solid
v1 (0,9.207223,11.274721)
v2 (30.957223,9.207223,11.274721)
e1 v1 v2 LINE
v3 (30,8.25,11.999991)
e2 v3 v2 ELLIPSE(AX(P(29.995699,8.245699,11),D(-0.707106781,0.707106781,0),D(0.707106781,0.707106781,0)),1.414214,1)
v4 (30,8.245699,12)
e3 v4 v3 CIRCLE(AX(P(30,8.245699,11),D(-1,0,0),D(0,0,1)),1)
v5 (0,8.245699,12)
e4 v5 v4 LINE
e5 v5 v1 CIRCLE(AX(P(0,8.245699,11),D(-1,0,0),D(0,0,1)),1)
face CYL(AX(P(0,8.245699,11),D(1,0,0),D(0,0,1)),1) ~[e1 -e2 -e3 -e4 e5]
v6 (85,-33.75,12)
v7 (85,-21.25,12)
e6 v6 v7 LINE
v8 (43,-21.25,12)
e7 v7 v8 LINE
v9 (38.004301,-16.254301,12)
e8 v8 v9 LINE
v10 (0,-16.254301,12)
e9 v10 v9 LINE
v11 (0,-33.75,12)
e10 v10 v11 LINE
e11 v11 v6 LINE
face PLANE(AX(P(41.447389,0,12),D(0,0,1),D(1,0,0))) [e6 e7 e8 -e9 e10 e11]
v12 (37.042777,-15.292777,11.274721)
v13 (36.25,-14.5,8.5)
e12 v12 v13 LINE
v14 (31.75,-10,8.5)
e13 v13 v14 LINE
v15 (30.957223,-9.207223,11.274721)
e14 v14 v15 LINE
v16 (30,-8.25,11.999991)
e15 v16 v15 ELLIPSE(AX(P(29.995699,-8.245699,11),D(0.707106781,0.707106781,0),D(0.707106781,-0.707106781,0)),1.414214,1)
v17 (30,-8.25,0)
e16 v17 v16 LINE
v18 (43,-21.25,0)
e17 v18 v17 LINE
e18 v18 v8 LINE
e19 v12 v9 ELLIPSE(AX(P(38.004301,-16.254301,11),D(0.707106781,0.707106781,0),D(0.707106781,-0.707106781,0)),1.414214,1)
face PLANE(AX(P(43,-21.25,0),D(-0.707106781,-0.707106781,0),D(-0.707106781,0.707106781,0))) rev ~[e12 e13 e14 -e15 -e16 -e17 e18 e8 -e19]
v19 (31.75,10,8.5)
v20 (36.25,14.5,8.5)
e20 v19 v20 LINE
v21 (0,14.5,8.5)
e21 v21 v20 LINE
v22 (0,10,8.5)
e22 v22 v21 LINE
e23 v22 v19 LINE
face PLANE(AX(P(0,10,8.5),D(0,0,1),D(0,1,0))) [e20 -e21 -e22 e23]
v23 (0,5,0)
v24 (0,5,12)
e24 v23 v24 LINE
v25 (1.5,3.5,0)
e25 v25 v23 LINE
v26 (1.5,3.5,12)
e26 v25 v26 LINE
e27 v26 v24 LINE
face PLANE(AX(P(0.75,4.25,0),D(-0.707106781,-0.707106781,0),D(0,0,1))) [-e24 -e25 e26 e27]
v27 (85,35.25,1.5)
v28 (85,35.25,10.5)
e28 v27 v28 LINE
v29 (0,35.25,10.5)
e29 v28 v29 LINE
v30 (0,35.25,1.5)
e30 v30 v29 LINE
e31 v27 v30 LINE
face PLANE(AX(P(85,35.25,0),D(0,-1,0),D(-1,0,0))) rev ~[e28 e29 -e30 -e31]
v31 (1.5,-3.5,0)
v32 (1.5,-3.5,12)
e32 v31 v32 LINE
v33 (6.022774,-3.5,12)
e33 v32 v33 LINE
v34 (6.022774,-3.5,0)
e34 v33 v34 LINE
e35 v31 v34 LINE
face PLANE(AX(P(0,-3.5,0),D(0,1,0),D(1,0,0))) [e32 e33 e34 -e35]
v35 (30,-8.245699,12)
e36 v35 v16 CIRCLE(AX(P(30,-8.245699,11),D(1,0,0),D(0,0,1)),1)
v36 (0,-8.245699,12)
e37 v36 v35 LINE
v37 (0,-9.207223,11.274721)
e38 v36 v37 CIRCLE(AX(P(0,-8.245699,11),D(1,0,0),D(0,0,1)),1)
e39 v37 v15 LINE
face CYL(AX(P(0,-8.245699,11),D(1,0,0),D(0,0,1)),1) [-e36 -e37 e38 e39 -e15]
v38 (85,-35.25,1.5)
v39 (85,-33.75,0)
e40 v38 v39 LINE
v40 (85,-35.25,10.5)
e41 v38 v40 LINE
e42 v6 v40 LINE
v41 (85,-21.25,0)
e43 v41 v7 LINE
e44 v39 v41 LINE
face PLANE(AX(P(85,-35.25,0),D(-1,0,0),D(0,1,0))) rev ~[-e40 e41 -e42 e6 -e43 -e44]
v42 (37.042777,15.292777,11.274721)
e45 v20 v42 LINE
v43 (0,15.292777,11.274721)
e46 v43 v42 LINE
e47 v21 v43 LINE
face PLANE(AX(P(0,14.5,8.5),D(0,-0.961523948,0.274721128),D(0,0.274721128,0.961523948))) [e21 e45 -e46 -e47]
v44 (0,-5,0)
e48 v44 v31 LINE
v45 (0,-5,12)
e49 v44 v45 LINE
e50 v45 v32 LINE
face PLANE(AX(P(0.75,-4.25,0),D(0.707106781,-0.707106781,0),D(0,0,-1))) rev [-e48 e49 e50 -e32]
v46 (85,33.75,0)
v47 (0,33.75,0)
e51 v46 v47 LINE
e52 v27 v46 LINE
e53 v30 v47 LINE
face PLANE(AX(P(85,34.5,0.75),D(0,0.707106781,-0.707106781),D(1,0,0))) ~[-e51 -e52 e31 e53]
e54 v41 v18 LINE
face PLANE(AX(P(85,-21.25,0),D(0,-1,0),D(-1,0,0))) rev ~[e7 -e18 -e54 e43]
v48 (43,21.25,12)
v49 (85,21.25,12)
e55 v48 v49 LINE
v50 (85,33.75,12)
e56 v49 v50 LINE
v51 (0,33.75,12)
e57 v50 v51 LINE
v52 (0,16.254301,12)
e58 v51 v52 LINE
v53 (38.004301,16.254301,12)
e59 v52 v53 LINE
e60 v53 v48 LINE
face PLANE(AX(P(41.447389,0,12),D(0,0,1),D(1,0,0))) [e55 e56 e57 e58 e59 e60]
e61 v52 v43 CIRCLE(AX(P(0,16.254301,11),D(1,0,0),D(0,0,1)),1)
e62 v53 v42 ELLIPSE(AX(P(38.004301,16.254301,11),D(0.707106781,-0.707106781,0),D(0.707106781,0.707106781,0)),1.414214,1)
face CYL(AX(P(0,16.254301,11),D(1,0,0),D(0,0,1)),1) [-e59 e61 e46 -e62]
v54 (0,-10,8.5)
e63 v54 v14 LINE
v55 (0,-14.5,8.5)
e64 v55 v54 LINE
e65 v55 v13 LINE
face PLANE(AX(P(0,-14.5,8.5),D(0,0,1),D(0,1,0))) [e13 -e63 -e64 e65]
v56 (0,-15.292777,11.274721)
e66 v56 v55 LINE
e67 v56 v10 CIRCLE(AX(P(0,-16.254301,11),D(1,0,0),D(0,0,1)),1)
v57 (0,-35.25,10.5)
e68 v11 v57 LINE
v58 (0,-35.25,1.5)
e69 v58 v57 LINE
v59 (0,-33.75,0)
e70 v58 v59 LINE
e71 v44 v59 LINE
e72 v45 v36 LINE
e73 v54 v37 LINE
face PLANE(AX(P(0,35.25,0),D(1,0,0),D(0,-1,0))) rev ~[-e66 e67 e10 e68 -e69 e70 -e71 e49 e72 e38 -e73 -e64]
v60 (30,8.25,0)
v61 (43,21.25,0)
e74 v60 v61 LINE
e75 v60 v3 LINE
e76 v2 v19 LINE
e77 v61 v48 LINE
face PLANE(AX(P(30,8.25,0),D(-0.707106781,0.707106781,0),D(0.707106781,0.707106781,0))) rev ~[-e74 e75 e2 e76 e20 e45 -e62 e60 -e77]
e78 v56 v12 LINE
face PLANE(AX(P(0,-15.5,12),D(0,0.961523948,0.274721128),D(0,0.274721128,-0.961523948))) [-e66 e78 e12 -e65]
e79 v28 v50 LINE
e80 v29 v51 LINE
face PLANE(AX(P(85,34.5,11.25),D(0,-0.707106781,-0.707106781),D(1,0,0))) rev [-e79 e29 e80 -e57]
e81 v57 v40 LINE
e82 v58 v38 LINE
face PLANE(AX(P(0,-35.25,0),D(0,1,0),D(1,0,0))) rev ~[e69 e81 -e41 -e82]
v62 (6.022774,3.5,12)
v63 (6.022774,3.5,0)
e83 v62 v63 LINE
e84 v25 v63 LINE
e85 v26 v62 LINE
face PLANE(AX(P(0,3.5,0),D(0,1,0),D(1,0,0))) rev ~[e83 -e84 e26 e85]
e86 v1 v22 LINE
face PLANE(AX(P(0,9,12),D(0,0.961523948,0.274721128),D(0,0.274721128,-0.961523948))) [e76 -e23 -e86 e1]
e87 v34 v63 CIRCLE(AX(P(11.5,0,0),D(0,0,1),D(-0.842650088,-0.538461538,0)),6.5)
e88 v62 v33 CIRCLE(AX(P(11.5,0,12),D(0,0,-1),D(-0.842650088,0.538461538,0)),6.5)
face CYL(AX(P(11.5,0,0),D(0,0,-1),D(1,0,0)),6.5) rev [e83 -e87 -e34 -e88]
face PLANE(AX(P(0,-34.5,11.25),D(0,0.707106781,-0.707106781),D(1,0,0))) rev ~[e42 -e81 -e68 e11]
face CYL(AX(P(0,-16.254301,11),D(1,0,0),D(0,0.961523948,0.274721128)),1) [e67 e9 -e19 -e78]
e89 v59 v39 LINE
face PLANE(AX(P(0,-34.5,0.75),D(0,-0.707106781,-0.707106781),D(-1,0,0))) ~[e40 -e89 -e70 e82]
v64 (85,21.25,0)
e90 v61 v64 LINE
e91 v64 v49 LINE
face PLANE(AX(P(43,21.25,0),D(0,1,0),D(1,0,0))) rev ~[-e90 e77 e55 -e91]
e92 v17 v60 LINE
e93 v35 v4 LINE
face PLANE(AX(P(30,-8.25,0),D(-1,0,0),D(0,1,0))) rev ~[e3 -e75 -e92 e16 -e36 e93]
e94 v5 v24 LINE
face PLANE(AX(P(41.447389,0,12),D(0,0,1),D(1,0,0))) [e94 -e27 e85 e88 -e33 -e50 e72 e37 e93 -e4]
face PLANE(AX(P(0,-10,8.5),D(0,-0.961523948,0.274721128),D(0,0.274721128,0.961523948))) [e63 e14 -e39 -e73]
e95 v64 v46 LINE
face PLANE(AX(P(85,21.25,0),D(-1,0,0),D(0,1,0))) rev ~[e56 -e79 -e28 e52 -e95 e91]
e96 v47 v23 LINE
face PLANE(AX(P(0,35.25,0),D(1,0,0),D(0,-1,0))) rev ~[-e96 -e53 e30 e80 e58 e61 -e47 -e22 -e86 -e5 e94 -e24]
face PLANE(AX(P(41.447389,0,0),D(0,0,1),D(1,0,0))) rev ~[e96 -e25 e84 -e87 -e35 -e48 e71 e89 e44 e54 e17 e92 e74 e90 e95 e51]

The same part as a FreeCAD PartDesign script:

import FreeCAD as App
import Part
import Sketcher
Q = App.Units.Quantity


def edges_at(feature, points):
    """Names of the edges that pass closest to the given points."""
    edges = feature.Shape.Edges
    near = lambda p: min(range(len(edges)), key=lambda i: edges[i].distToShape(Part.Vertex(*p))[0])
    return sorted({f"Edge{near(p) + 1}" for p in points})

doc = App.newDocument("Part")
params = doc.addObject("Spreadsheet::Sheet", "Params")
for row, (alias, value) in enumerate([
    ("sketch1_width", "85 mm"),
    ("sketch1_width2", "42 mm"),
    ("sketch1_height", "14 mm"),
    ("sketch1_height2", "70.5 mm"),
    ("sketch1_height3", "16.5 mm"),
    ("pad1_length", "12 mm"),
    ("sketch2_width", "8 mm"),
    ("sketch2_height", "7 mm"),
    ("pocket1_length", "12 mm"),
    ("sketch3_diameter", "13 mm"),
    ("pocket2_length", "12 mm"),
    ("chamfer_size", "1.5 mm"),
    ("sketch4_width", "6.5 mm"),
    ("sketch4_width2", "4.5 mm"),
    ("pocket3_length", "40 mm"),
    ("fillet_radius", "1 mm"),
], start=1):
    params.set(f"A{row}", alias)
    params.set(f"B{row}", "=" + value)
    params.setAlias(f"B{row}", alias)

body = doc.addObject("PartDesign::Body", "Body")

sketch1 = doc.addObject("Sketcher::SketchObject", "Sketch")
body.addObject(sketch1)
sketch1.AttachmentSupport = (doc.XY_Plane, [""])
sketch1.MapMode = "FlatFace"
sketch1.addGeometry([
    Part.LineSegment(App.Vector(85, 35, 0), App.Vector(0, 35, 0)),
    Part.LineSegment(App.Vector(0, 35, 0), App.Vector(0, -35, 0)),
    Part.LineSegment(App.Vector(0, -35, 0), App.Vector(85, -35, 0)),
    Part.LineSegment(App.Vector(85, -35, 0), App.Vector(85, -21, 0)),
    Part.LineSegment(App.Vector(85, -21, 0), App.Vector(43, -21, 0)),
    Part.LineSegment(App.Vector(43, -21, 0), App.Vector(30, -8, 0)),
    Part.LineSegment(App.Vector(30, -8, 0), App.Vector(30, 8, 0)),
    Part.LineSegment(App.Vector(30, 8, 0), App.Vector(43, 21, 0)),
    Part.LineSegment(App.Vector(43, 21, 0), App.Vector(85, 21, 0)),
    Part.LineSegment(App.Vector(85, 21, 0), App.Vector(85, 35, 0)),
], False)
sketch1.addConstraint([
    Sketcher.Constraint("Coincident", 0, 2, 1, 1),
    Sketcher.Constraint("Coincident", 1, 2, 2, 1),
    Sketcher.Constraint("Coincident", 2, 2, 3, 1),
    Sketcher.Constraint("Coincident", 3, 2, 4, 1),
    Sketcher.Constraint("Coincident", 4, 2, 5, 1),
    Sketcher.Constraint("Coincident", 5, 2, 6, 1),
    Sketcher.Constraint("Coincident", 6, 2, 7, 1),
    Sketcher.Constraint("Coincident", 7, 2, 8, 1),
    Sketcher.Constraint("Coincident", 8, 2, 9, 1),
    Sketcher.Constraint("Coincident", 9, 2, 0, 1),
    Sketcher.Constraint("Horizontal", 0),
    Sketcher.Constraint("Vertical", 1),
    Sketcher.Constraint("Horizontal", 2),
    Sketcher.Constraint("Vertical", 3),
    Sketcher.Constraint("Horizontal", 4),
    Sketcher.Constraint("Vertical", 6),
    Sketcher.Constraint("Horizontal", 8),
    Sketcher.Constraint("Vertical", 9),
    Sketcher.Constraint("Symmetric", 0, 2, 1, 2, -1, 1),
    Sketcher.Constraint("Symmetric", 4, 2, 7, 2, -1),
    Sketcher.Constraint("Perpendicular", 5, 7),
    Sketcher.Constraint("Vertical", 3, 2, 8, 2),
    Sketcher.Constraint("Equal", 5, 7),
    Sketcher.Constraint("DistanceX", 0, 2, 0, 1, Q("85 mm")),
    Sketcher.Constraint("DistanceX", 4, 2, 4, 1, Q("42 mm")),
    Sketcher.Constraint("DistanceY", 3, 1, 3, 2, Q("14 mm")),
    Sketcher.Constraint("DistanceY", 1, 2, 1, 1, Q("70.5 mm")),
    Sketcher.Constraint("DistanceY", 6, 1, 6, 2, Q("16.5 mm")),
])
sketch1.setExpression("Constraints[23]", "Params.sketch1_width")
sketch1.setExpression("Constraints[24]", "Params.sketch1_width2")
sketch1.setExpression("Constraints[25]", "Params.sketch1_height")
sketch1.setExpression("Constraints[26]", "Params.sketch1_height2")
sketch1.setExpression("Constraints[27]", "Params.sketch1_height3")
pad1 = doc.addObject("PartDesign::Pad", "Pad")
body.addObject(pad1)
pad1.Profile = sketch1
pad1.setExpression("Length", "Params.pad1_length")

sketch2 = doc.addObject("Sketcher::SketchObject", "Sketch001")
body.addObject(sketch2)
sketch2.AttachmentSupport = (doc.XY_Plane, [""])
sketch2.MapMode = "FlatFace"
sketch2.addGeometry([
    Part.LineSegment(App.Vector(0, 4, 0), App.Vector(0, -4, 0)),
    Part.LineSegment(App.Vector(0, -4, 0), App.Vector(8, -4, 0)),
    Part.LineSegment(App.Vector(8, -4, 0), App.Vector(8, 4, 0)),
    Part.LineSegment(App.Vector(8, 4, 0), App.Vector(0, 4, 0)),
], False)
sketch2.addConstraint([
    Sketcher.Constraint("Coincident", 0, 2, 1, 1),
    Sketcher.Constraint("Coincident", 1, 2, 2, 1),
    Sketcher.Constraint("Coincident", 2, 2, 3, 1),
    Sketcher.Constraint("Coincident", 3, 2, 0, 1),
    Sketcher.Constraint("Vertical", 0),
    Sketcher.Constraint("Horizontal", 1),
    Sketcher.Constraint("Vertical", 2),
    Sketcher.Constraint("Horizontal", 3),
    Sketcher.Constraint("Symmetric", 0, 2, 3, 2, -1, 1),
    Sketcher.Constraint("DistanceX", 1, 1, 1, 2, Q("8 mm")),
    Sketcher.Constraint("DistanceY", 0, 2, 0, 1, Q("7 mm")),
])
sketch2.setExpression("Constraints[9]", "Params.sketch2_width")
sketch2.setExpression("Constraints[10]", "Params.sketch2_height")
pocket1 = doc.addObject("PartDesign::Pocket", "Pocket")
body.addObject(pocket1)
pocket1.Profile = sketch2
pocket1.setExpression("Length", "Params.pocket1_length")
pocket1.Reversed = True

sketch3 = doc.addObject("Sketcher::SketchObject", "Sketch002")
body.addObject(sketch3)
sketch3.AttachmentSupport = (doc.XY_Plane, [""])
sketch3.MapMode = "FlatFace"
sketch3.addGeometry(Part.Circle(App.Vector(12, 0, 0), App.Vector(0, 0, 1), 6), False)
sketch3.addConstraint([
    Sketcher.Constraint("PointOnObject", 0, 3, -1),
    Sketcher.Constraint("Diameter", 0, Q("13 mm")),
    Sketcher.Constraint("DistanceX", -1, 1, 0, 3, Q("11.5 mm")),
])
sketch3.setExpression("Constraints[1]", "Params.sketch3_diameter")
pocket2 = doc.addObject("PartDesign::Pocket", "Pocket001")
body.addObject(pocket2)
pocket2.Profile = sketch3
pocket2.setExpression("Length", "Params.pocket2_length")
pocket2.Reversed = True
doc.recompute()

chamfer = doc.addObject("PartDesign::Chamfer", "Chamfer")
body.addObject(chamfer)
chamfer.Base = (pocket2, edges_at(pocket2, [
    (42.5, -35.25, 12),
    (42.5, 35.25, 12),
    (42.5, -35.25, 0),
    (42.5, 35.25, 0),
    (0, 3.5, 6),
    (0, -3.5, 6),
]))
chamfer.setExpression("Size", "Params.chamfer_size")

sketch4 = doc.addObject("Sketcher::SketchObject", "Sketch003")
body.addObject(sketch4)
sketch4.AttachmentSupport = (doc.YZ_Plane, [""])
sketch4.MapMode = "FlatFace"
sketch4.addGeometry([
    Part.LineSegment(App.Vector(-10, 8.5, 0), App.Vector(-9, 12, 0)),
    Part.LineSegment(App.Vector(-9, 12, 0), App.Vector(-15.5, 12, 0)),
    Part.LineSegment(App.Vector(-15.5, 12, 0), App.Vector(-14.5, 8.5, 0)),
    Part.LineSegment(App.Vector(-14.5, 8.5, 0), App.Vector(-10, 8.5, 0)),
    Part.LineSegment(App.Vector(14.5, 8.5, 0), App.Vector(15.5, 12, 0)),
    Part.LineSegment(App.Vector(15.5, 12, 0), App.Vector(9, 12, 0)),
    Part.LineSegment(App.Vector(9, 12, 0), App.Vector(10, 8.5, 0)),
    Part.LineSegment(App.Vector(10, 8.5, 0), App.Vector(14.5, 8.5, 0)),
], False)
sketch4.addConstraint([
    Sketcher.Constraint("Coincident", 0, 2, 1, 1),
    Sketcher.Constraint("Coincident", 1, 2, 2, 1),
    Sketcher.Constraint("Coincident", 2, 2, 3, 1),
    Sketcher.Constraint("Coincident", 3, 2, 0, 1),
    Sketcher.Constraint("Coincident", 4, 2, 5, 1),
    Sketcher.Constraint("Coincident", 5, 2, 6, 1),
    Sketcher.Constraint("Coincident", 6, 2, 7, 1),
    Sketcher.Constraint("Coincident", 7, 2, 4, 1),
    Sketcher.Constraint("Horizontal", 1),
    Sketcher.Constraint("Horizontal", 3),
    Sketcher.Constraint("Horizontal", 5),
    Sketcher.Constraint("Horizontal", 7),
    Sketcher.Constraint("Symmetric", 1, 2, 4, 2, -2),
    Sketcher.Constraint("Symmetric", 3, 2, 6, 2, -2),
    Sketcher.Constraint("Parallel", 0, 4),
    Sketcher.Constraint("Parallel", 2, 6),
    Sketcher.Constraint("Equal", 1, 5),
    Sketcher.Constraint("DistanceX", 1, 2, 1, 1, Q("6.5 mm")),
    Sketcher.Constraint("DistanceX", 3, 1, 3, 2, Q("4.5 mm")),
    Sketcher.Constraint("DistanceX", 0, 2, -1, 1, Q("9 mm")),
    Sketcher.Constraint("DistanceY", -1, 1, 0, 2, Q("12 mm")),
    Sketcher.Constraint("DistanceY", -1, 1, 2, 2, Q("8.5 mm")),
])
sketch4.setExpression("Constraints[17]", "Params.sketch4_width")
sketch4.setExpression("Constraints[18]", "Params.sketch4_width2")
pocket3 = doc.addObject("PartDesign::Pocket", "Pocket002")
body.addObject(pocket3)
pocket3.Profile = sketch4
pocket3.setExpression("Length", "Params.pocket3_length")
pocket3.Reversed = True
doc.recompute()

fillet = doc.addObject("PartDesign::Fillet", "Fillet")
body.addObject(fillet)
fillet.Base = (pocket3, edges_at(pocket3, [
    (18.625, 15.5, 12),
    (18.625, -15.5, 12),
    (15.375, -9, 12),
    (15.375, 9, 12),
]))
fillet.setExpression("Radius", "Params.fillet_radius")

doc.recompute()
